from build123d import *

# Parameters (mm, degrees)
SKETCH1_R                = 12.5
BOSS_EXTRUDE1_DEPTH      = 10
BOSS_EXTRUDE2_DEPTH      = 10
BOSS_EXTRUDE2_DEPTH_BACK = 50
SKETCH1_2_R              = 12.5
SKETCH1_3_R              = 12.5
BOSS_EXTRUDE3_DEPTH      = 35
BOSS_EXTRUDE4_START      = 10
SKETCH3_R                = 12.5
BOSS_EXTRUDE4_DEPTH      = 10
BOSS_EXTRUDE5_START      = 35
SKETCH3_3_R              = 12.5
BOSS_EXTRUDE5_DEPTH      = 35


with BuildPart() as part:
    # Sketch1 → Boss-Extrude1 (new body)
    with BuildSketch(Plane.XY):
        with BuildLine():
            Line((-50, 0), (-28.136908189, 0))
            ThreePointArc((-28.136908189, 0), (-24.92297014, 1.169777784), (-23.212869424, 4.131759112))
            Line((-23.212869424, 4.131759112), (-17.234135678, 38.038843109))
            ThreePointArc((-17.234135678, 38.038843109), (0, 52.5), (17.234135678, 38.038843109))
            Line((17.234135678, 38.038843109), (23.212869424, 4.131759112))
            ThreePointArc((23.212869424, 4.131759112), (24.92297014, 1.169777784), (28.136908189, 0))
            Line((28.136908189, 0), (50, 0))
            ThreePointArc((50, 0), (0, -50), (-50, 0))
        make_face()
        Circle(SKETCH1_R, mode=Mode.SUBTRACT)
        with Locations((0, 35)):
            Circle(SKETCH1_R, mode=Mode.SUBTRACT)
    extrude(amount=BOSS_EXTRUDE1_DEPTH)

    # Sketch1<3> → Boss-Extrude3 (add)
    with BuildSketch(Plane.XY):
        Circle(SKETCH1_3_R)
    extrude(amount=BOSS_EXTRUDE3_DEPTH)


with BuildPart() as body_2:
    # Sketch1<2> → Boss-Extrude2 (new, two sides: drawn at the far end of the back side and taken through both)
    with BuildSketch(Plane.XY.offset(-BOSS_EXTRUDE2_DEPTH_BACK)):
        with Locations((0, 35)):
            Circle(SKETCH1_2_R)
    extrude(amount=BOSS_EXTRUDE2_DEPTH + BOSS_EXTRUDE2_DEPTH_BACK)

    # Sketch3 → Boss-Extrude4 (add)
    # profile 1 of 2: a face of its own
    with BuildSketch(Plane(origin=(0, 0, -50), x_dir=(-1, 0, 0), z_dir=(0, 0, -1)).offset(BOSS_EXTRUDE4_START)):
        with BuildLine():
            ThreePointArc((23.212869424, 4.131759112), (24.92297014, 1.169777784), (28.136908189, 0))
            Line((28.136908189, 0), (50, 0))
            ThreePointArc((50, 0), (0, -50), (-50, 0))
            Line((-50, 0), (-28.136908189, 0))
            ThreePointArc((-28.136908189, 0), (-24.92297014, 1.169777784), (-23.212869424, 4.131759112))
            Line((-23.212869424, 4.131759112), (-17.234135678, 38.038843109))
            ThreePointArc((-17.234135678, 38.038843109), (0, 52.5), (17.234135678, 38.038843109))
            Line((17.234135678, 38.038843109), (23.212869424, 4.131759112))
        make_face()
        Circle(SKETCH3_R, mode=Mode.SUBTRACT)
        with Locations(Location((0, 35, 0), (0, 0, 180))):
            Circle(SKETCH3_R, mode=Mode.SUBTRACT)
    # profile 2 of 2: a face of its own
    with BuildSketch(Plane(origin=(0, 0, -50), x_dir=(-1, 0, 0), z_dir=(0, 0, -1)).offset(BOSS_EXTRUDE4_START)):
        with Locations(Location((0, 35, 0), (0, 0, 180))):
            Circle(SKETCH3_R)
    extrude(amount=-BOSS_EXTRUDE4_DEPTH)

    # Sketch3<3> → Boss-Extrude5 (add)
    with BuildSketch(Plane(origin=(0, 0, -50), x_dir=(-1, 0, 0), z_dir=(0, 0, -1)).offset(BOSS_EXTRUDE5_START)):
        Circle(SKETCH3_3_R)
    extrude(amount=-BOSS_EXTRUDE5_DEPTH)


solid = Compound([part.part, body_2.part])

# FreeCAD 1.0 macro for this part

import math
import FreeCAD as App
import Part
import Sketcher

V = App.Vector
Q = App.Units.Quantity

doc = App.newDocument("Part")
body = doc.addObject("PartDesign::Body", "Body")

# Sketch on XY plane
sketch1 = doc.addObject("Sketcher::SketchObject", "Sketch")
body.addObject(sketch1)
sketch1.AttachmentSupport = (doc.XY_Plane, [""])
sketch1.MapMode = "FlatFace"
sketch1.addGeometry(Part.LineSegment(V(-28.1, 0, 0), V(-50, 0, 0)), False)
sketch1.addGeometry(Part.ArcOfCircle(Part.Circle(V(0, 0, 0), V(0, 0, 1), 50), math.radians(180), math.radians(360)), False)
sketch1.addGeometry(Part.LineSegment(V(50, 0, 0), V(28.1, 0, 0)), False)
sketch1.addGeometry(Part.ArcOfCircle(Part.Circle(V(28.1, 5, 0), V(0, 0, 1), 5), math.radians(-170), math.radians(-90)), False)
sketch1.addGeometry(Part.LineSegment(V(23.2, 4.1, 0), V(17.2, 38, 0)), False)
sketch1.addGeometry(Part.ArcOfCircle(Part.Circle(V(0, 35, 0), V(0, 0, 1), 17.5), math.radians(10), math.radians(170)), False)
sketch1.addGeometry(Part.LineSegment(V(-17.2, 38, 0), V(-23.2, 4.1, 0)), False)
sketch1.addGeometry(Part.ArcOfCircle(Part.Circle(V(-28.1, 5, 0), V(0, 0, 1), 5), math.radians(-90), math.radians(-10)), False)
sketch1.addGeometry(Part.Circle(V(0, 0, 0), V(0, 0, 1), 12.5), False)
sketch1.addGeometry(Part.Circle(V(0, 35, 0), V(0, 0, 1), 12.5), False)
sketch1.addConstraint(Sketcher.Constraint("Coincident", 0, 2, 1, 1))
sketch1.addConstraint(Sketcher.Constraint("Coincident", 1, 2, 2, 1))
sketch1.addConstraint(Sketcher.Constraint("Tangent", 2, 2, 3, 2))
sketch1.addConstraint(Sketcher.Constraint("Tangent", 3, 1, 4, 1))
sketch1.addConstraint(Sketcher.Constraint("Tangent", 4, 2, 5, 1))
sketch1.addConstraint(Sketcher.Constraint("Tangent", 5, 2, 6, 1))
sketch1.addConstraint(Sketcher.Constraint("Tangent", 6, 2, 7, 2))
sketch1.addConstraint(Sketcher.Constraint("Tangent", 7, 1, 0, 1))
sketch1.addConstraint(Sketcher.Constraint("Horizontal", 0))
sketch1.addConstraint(Sketcher.Constraint("Horizontal", 2))
sketch1.addConstraint(Sketcher.Constraint("Coincident", 1, 3, -1, 1))
sketch1.addConstraint(Sketcher.Constraint("Coincident", 8, 3, -1, 1))
sketch1.addConstraint(Sketcher.Constraint("Coincident", 9, 3, 5, 3))
sketch1.addConstraint(Sketcher.Constraint("Equal", 3, 7))
sketch1.addConstraint(Sketcher.Constraint("Equal", 8, 9))
sketch1.addConstraint(Sketcher.Constraint("Symmetric", 2, 2, 7, 1, -1, 1))
sketch1.addConstraint(Sketcher.Constraint("Symmetric", 4, 2, 5, 2, -2))
sketch1.addConstraint(Sketcher.Constraint("Diameter", 8, Q("25 mm")))
sketch1.addConstraint(Sketcher.Constraint("Radius", 1, Q("50 mm")))
sketch1.addConstraint(Sketcher.Constraint("Radius", 3, Q("5 mm")))
sketch1.addConstraint(Sketcher.Constraint("Radius", 5, Q("17.5 mm")))
sketch1.addConstraint(Sketcher.Constraint("Angle", 4, Q("100 deg")))
sketch1.addConstraint(Sketcher.Constraint("DistanceY", -1, 1, 5, 3, Q("35 mm")))
pad1 = doc.addObject("PartDesign::Pad", "Pad")
body.addObject(pad1)
pad1.Profile = sketch1
pad1.Length = 10

# Sketch on XY plane
sketch2 = doc.addObject("Sketcher::SketchObject", "Sketch001")
body.addObject(sketch2)
sketch2.AttachmentSupport = (doc.XY_Plane, [""])
sketch2.MapMode = "FlatFace"
sketch2.addGeometry(Part.Circle(V(0, 0, 0), V(0, 0, 1), 12), False)
sketch2.addConstraint(Sketcher.Constraint("Coincident", 0, 3, -1, 1))
sketch2.addConstraint(Sketcher.Constraint("Diameter", 0, Q("25 mm")))
pad2 = doc.addObject("PartDesign::Pad", "Pad001")
body.addObject(pad2)
pad2.Profile = sketch2
pad2.Length = 35
body2 = doc.addObject("PartDesign::Body", "Body001")

# Sketch on XY plane
sketch3 = doc.addObject("Sketcher::SketchObject", "Sketch002")
body2.addObject(sketch3)
sketch3.AttachmentSupport = (doc.getObject("XY_Plane001"), [""])
sketch3.MapMode = "FlatFace"
sketch3.addGeometry(Part.Circle(V(0, 35, 0), V(0, 0, 1), 12), False)
sketch3.addConstraint(Sketcher.Constraint("PointOnObject", 0, 3, -2))
sketch3.addConstraint(Sketcher.Constraint("Diameter", 0, Q("25 mm")))
sketch3.addConstraint(Sketcher.Constraint("DistanceY", -1, 1, 0, 3, Q("35 mm")))
pad3 = doc.addObject("PartDesign::Pad", "Pad002")
body2.addObject(pad3)
pad3.Profile = sketch3
pad3.Type = "TwoLengths"
pad3.Length = 10
pad3.Length2 = 50

# Sketch on XY plane
sketch4 = doc.addObject("Sketcher::SketchObject", "Sketch003")
body2.addObject(sketch4)
sketch4.AttachmentSupport = (doc.getObject("XY_Plane001"), [""])
sketch4.MapMode = "FlatFace"
sketch4.AttachmentOffset = App.Placement(V(0, 0, -60), App.Rotation())
sketch4.addGeometry(Part.ArcOfCircle(Part.Circle(V(-28.1, 5, 0), V(0, 0, 1), 5), math.radians(-90), math.radians(-10)), False)
sketch4.addGeometry(Part.LineSegment(V(-23.2, 4.1, 0), V(-17.2, 38, 0)), False)
sketch4.addGeometry(Part.ArcOfCircle(Part.Circle(V(0, 35, 0), V(0, 0, 1), 17.5), math.radians(10), math.radians(170)), False)
sketch4.addGeometry(Part.LineSegment(V(17.2, 38, 0), V(23.2, 4.1, 0)), False)
sketch4.addGeometry(Part.ArcOfCircle(Part.Circle(V(28.1, 5, 0), V(0, 0, 1), 5), math.radians(-170), math.radians(-90)), False)
sketch4.addGeometry(Part.LineSegment(V(28.1, 0, 0), V(50, 0, 0)), False)
sketch4.addGeometry(Part.ArcOfCircle(Part.Circle(V(0, 0, 0), V(0, 0, 1), 50), math.radians(180), math.radians(360)), False)
sketch4.addGeometry(Part.LineSegment(V(-50, 0, 0), V(-28.1, 0, 0)), False)
sketch4.addGeometry(Part.Circle(V(0, 0, 0), V(0, 0, 1), 12.5), False)
sketch4.addConstraint(Sketcher.Constraint("Tangent", 0, 2, 1, 1))
sketch4.addConstraint(Sketcher.Constraint("Tangent", 1, 2, 2, 2))
sketch4.addConstraint(Sketcher.Constraint("Tangent", 2, 1, 3, 1))
sketch4.addConstraint(Sketcher.Constraint("Tangent", 3, 2, 4, 1))
sketch4.addConstraint(Sketcher.Constraint("Tangent", 4, 2, 5, 1))
sketch4.addConstraint(Sketcher.Constraint("Coincident", 5, 2, 6, 2))
sketch4.addConstraint(Sketcher.Constraint("Coincident", 6, 1, 7, 1))
sketch4.addConstraint(Sketcher.Constraint("Tangent", 7, 2, 0, 1))
sketch4.addConstraint(Sketcher.Constraint("Horizontal", 5))
sketch4.addConstraint(Sketcher.Constraint("Horizontal", 7))
sketch4.addConstraint(Sketcher.Constraint("Coincident", 6, 3, -1, 1))
sketch4.addConstraint(Sketcher.Constraint("Coincident", 8, 3, -1, 1))
sketch4.addConstraint(Sketcher.Constraint("Equal", 0, 4))
sketch4.addConstraint(Sketcher.Constraint("Symmetric", 4, 2, 7, 2, -1, 1))
sketch4.addConstraint(Sketcher.Constraint("Symmetric", 1, 2, 2, 1, -2))
sketch4.addConstraint(Sketcher.Constraint("Diameter", 8, Q("25 mm")))
sketch4.addConstraint(Sketcher.Constraint("Radius", 0, Q("5 mm")))
sketch4.addConstraint(Sketcher.Constraint("Radius", 6, Q("50 mm")))
sketch4.addConstraint(Sketcher.Constraint("Radius", 2, Q("17.5 mm")))
sketch4.addConstraint(Sketcher.Constraint("Angle", 1, Q("80 deg")))
sketch4.addConstraint(Sketcher.Constraint("DistanceY", -1, 1, 2, 3, Q("35 mm")))
pad4 = doc.addObject("PartDesign::Pad", "Pad003")
body2.addObject(pad4)
pad4.Profile = sketch4
pad4.Length = 10

# Sketch on XY plane
sketch5 = doc.addObject("Sketcher::SketchObject", "Sketch004")
body2.addObject(sketch5)
sketch5.AttachmentSupport = (doc.getObject("XY_Plane001"), [""])
sketch5.MapMode = "FlatFace"
sketch5.AttachmentOffset = App.Placement(V(0, 0, -85), App.Rotation())
sketch5.addGeometry(Part.Circle(V(0, 0, 0), V(0, 0, 1), 12), False)
sketch5.addConstraint(Sketcher.Constraint("Coincident", 0, 3, -1, 1))
sketch5.addConstraint(Sketcher.Constraint("Diameter", 0, Q("25 mm")))
pad5 = doc.addObject("PartDesign::Pad", "Pad004")
body2.addObject(pad5)
pad5.Profile = sketch5
pad5.Length = 35

doc.recompute()
